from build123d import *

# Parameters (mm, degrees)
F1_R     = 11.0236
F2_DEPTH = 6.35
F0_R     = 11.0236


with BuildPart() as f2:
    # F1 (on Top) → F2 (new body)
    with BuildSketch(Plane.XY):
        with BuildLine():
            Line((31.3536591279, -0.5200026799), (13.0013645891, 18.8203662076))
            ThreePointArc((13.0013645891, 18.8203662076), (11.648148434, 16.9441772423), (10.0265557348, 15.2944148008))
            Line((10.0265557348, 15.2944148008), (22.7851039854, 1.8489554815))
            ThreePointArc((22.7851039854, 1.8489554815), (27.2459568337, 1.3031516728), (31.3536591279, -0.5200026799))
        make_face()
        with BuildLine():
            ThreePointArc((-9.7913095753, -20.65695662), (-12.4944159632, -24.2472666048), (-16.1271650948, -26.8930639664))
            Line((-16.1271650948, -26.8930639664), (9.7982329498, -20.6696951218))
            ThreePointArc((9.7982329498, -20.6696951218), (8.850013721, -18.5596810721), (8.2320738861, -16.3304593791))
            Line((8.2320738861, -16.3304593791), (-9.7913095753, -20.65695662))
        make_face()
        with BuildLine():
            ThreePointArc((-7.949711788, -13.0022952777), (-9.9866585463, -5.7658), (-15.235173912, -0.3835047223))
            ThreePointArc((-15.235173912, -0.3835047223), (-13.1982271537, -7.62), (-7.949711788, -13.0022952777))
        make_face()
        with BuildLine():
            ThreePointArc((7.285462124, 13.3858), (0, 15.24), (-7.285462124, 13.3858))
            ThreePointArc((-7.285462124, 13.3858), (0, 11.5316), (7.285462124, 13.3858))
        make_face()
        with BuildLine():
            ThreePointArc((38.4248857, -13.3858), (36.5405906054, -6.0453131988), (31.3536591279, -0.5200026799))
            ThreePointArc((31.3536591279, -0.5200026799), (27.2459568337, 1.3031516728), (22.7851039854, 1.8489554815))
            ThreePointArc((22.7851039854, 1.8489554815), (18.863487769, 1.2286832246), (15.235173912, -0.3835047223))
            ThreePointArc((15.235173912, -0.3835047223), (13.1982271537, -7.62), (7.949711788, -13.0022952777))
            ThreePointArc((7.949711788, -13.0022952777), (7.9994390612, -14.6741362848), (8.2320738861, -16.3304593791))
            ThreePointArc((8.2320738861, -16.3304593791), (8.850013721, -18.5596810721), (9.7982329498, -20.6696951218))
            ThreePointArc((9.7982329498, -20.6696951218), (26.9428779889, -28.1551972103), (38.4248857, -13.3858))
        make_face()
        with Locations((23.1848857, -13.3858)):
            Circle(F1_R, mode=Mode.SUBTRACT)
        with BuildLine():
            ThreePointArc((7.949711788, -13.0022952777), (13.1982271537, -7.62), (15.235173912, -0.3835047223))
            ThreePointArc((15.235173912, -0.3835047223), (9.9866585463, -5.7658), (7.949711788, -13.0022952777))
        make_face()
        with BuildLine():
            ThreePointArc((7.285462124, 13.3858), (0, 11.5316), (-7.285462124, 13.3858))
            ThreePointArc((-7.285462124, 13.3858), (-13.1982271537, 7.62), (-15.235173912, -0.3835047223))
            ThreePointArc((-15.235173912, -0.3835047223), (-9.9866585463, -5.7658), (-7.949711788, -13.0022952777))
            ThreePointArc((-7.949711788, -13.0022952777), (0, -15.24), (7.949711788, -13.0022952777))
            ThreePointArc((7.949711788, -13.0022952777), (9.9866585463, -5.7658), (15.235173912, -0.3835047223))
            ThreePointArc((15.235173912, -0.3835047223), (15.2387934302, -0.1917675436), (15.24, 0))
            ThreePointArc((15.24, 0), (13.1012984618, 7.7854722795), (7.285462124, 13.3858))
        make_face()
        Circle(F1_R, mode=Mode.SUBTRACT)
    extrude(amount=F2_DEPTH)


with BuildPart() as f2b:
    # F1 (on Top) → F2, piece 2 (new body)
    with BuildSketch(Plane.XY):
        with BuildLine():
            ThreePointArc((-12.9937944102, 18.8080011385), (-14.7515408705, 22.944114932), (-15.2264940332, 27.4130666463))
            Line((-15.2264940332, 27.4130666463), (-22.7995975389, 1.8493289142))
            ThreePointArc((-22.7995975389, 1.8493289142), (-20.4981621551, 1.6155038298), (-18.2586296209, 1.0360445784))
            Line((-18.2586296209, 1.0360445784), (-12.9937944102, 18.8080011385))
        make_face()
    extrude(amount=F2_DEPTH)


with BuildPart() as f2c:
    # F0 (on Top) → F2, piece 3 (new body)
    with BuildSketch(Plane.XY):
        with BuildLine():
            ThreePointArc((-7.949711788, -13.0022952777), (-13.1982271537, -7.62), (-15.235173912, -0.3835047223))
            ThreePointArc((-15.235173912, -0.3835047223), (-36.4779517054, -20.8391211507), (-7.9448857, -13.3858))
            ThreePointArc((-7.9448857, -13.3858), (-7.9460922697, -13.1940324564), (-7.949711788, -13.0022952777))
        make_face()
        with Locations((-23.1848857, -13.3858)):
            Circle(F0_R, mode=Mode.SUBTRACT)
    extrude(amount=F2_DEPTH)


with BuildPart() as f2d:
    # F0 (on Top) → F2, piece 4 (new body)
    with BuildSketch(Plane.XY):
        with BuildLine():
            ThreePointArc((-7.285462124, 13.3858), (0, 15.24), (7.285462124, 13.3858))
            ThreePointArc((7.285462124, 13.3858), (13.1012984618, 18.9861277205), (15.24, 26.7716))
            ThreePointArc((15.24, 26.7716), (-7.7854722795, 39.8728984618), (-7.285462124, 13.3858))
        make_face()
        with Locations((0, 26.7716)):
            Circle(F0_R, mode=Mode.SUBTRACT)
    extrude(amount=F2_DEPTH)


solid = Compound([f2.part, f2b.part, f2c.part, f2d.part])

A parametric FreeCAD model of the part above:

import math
import FreeCAD as App
import Part
import Sketcher

V = App.Vector
Q = App.Units.Quantity

doc = App.newDocument("Part")
body = doc.addObject("PartDesign::Body", "Body")

# Sketch on XY plane
sketch1 = doc.addObject("Sketcher::SketchObject", "Sketch")
body.addObject(sketch1)
sketch1.AttachmentSupport = (doc.XY_Plane, [""])
sketch1.MapMode = "FlatFace"
sketch1.addGeometry([
    Part.LineSegment(V(31.35, -0.52, 0), V(13, 18.82, 0)),  # 0
    Part.ArcOfCircle(Part.Circle(V(0, 26.77, 0), V(0, 0, 1), 15.24), math.radians(-48.86), math.radians(-31.45)),  # 1
    Part.LineSegment(V(10.03, 15.29, 0), V(22.79, 1.85, 0)),  # 2
    Part.ArcOfCircle(Part.Circle(V(23.18, -13.39, 0), V(0, 0, 1), 15.24), math.radians(92), math.radians(121)),  # 3
    Part.ArcOfCircle(Part.Circle(V(0, 0, 0), V(0, 0, 1), 15.24), math.radians(-1.44), math.radians(0)),  # 4
    Part.ArcOfCircle(Part.Circle(V(0, 0, 0), V(0, 0, 1), 15.24), math.radians(0), math.radians(61)),  # 5
    Part.ArcOfCircle(Part.Circle(V(0, 0, 0), V(0, 0, 1), 15.24), math.radians(61), math.radians(181)),  # 6
    Part.ArcOfCircle(Part.Circle(V(0, 0, 0), V(0, 0, 1), 15.24), math.radians(-179), math.radians(-121)),  # 7
    Part.ArcOfCircle(Part.Circle(V(0, 0, 0), V(0, 0, 1), 15.24), math.radians(-121), math.radians(-59)),  # 8
    Part.ArcOfCircle(Part.Circle(V(23.18, -13.39, 0), V(0, 0, 1), 15.24), math.radians(178.56), math.radians(191.14)),  # 9
    Part.LineSegment(V(8.23, -16.33, 0), V(-9.79, -20.66, 0)),  # 10
    Part.ArcOfCircle(Part.Circle(V(-23.18, -13.39, 0), V(0, 0, 1), 15.24), math.radians(-62), math.radians(-28)),  # 11
    Part.LineSegment(V(-16.13, -26.89, 0), V(9.8, -20.67, 0)),  # 12
    Part.ArcOfCircle(Part.Circle(V(23.18, -13.39, 0), V(0, 0, 1), 15.24), math.radians(-151), math.radians(0)),  # 13
    Part.ArcOfCircle(Part.Circle(V(23.18, -13.39, 0), V(0, 0, 1), 15.24), math.radians(0), math.radians(58)),  # 14
    Part.Circle(V(23.18, -13.39, 0), V(0, 0, 1), 11.02),  # 15
    Part.Circle(V(0, 0, 0), V(0, 0, 1), 11.02),  # 16
], False)
sketch1.addConstraint([
    Sketcher.Constraint("Coincident", 0, 2, 1, 2),
    Sketcher.Constraint("Coincident", 1, 1, 2, 1),
    Sketcher.Constraint("Coincident", 2, 2, 3, 1),
    Sketcher.Constraint("Coincident", 3, 2, 4, 1),
    Sketcher.Constraint("Tangent", 4, 2, 5, 1),
    Sketcher.Constraint("Tangent", 5, 2, 6, 1),
    Sketcher.Constraint("Tangent", 6, 2, 7, 1),
    Sketcher.Constraint("Tangent", 7, 2, 8, 1),
    Sketcher.Constraint("Coincident", 8, 2, 9, 1),
    Sketcher.Constraint("Coincident", 9, 2, 10, 1),
    Sketcher.Constraint("Coincident", 10, 2, 11, 2),
    Sketcher.Constraint("Coincident", 11, 1, 12, 1),
    Sketcher.Constraint("Coincident", 12, 2, 13, 1),
    Sketcher.Constraint("Tangent", 13, 2, 14, 1),
    Sketcher.Constraint("Coincident", 14, 2, 0, 1),
    Sketcher.Constraint("Coincident", 4, 3, -1, 1),
    Sketcher.Constraint("Coincident", 6, 3, -1, 1),
    Sketcher.Constraint("Coincident", 8, 3, -1, 1),
    Sketcher.Constraint("Coincident", 16, 3, -1, 1),
    Sketcher.Constraint("Coincident", 9, 3, 3, 3),
    Sketcher.Constraint("Coincident", 13, 3, 3, 3),
    Sketcher.Constraint("Coincident", 15, 3, 3, 3),
    Sketcher.Constraint("Equal", 1, 3),
    Sketcher.Constraint("Equal", 3, 4),
    Sketcher.Constraint("Equal", 8, 9),
    Sketcher.Constraint("Equal", 9, 11),
    Sketcher.Constraint("Equal", 11, 13),
    Sketcher.Constraint("Equal", 13, 14),
    Sketcher.Constraint("Equal", 15, 16),
    Sketcher.Constraint("Symmetric", 3, 3, 11, 3, -2),
    Sketcher.Constraint("PointOnObject", 1, 3, -2),
    Sketcher.Constraint("PointOnObject", 4, 2, -1),
    Sketcher.Constraint("Parallel", 0, 2),
    Sketcher.Constraint("Parallel", 10, 12),
    Sketcher.Constraint("Horizontal", 3, 2, 6, 2),
    Sketcher.Constraint("Horizontal", 7, 2, 8, 2),
    Sketcher.Constraint("Horizontal", 15, 3, 13, 2),
    Sketcher.Constraint("Equal", 2, 10),
    Sketcher.Constraint("Equal", 0, 12),
    Sketcher.Constraint("Radius", 1, Q("0.6 in")),
    Sketcher.Constraint("Diameter", 15, Q("0.868 in")),
    Sketcher.Constraint("DistanceY", -1, 1, 1, 3, Q("1.054 in")),
    Sketcher.Constraint("DistanceY", 3, 3, -1, 1, Q("0.527 in")),
    Sketcher.Constraint("DistanceY", -1, 1, 5, 2, Q("0.527 in")),
    Sketcher.Constraint("DistanceY", 12, 2, 8, 2, Q("7.6674 mm")),
    Sketcher.Constraint("DistanceX", 7, 2, -1, 1, Q("7.949712 mm")),
    Sketcher.Constraint("DistanceY", 9, 2, -1, 1, Q("16.330459 mm")),
    Sketcher.Constraint("DistanceX", 10, 2, -1, 1, Q("9.79131 mm")),
    Sketcher.Constraint("DistanceX", -1, 1, 14, 2, Q("31.353659 mm")),
])
pad1 = doc.addObject("PartDesign::Pad", "Pad")
body.addObject(pad1)
pad1.Profile = sketch1
pad1.Length = Q("0.25 in")
body2 = doc.addObject("PartDesign::Body", "Body001")

# Sketch on XY plane
sketch2 = doc.addObject("Sketcher::SketchObject", "Sketch001")
body2.addObject(sketch2)
sketch2.AttachmentSupport = (doc.getObject("XY_Plane001"), [""])
sketch2.MapMode = "FlatFace"
sketch2.addGeometry([
    Part.ArcOfCircle(Part.Circle(V(0, 26.8, 0), V(0, 0, 1), 15.2), math.radians(178), math.radians(212)),
    Part.LineSegment(V(-15.2, 27.4, 0), V(-22.8, 1.8, 0)),
    Part.ArcOfCircle(Part.Circle(V(-23.2, -13.4, 0), V(0, 0, 1), 15.2), math.radians(71.14), math.radians(88.55)),
    Part.LineSegment(V(-18.3, 1, 0), V(-13, 18.8, 0)),
], False)
sketch2.addConstraint([
    Sketcher.Constraint("Coincident", 0, 1, 1, 1),
    Sketcher.Constraint("Coincident", 1, 2, 2, 2),
    Sketcher.Constraint("Coincident", 2, 1, 3, 1),
    Sketcher.Constraint("Coincident", 3, 2, 0, 2),
    Sketcher.Constraint("Equal", 0, 2),
    Sketcher.Constraint("PointOnObject", 0, 3, -2),
    Sketcher.Constraint("Parallel", 1, 3),
    Sketcher.Constraint("Radius", 0, Q("0.6 in")),
    Sketcher.Constraint("DistanceY", -1, 1, 0, 3, Q("1.054 in")),
    Sketcher.Constraint("DistanceY", 2, 3, -1, 1, Q("0.527 in")),
    Sketcher.Constraint("DistanceY", -1, 1, 3, 2, Q("18.808001 mm")),
    Sketcher.Constraint("DistanceX", 0, 1, 3, 2, Q("2.2327 mm")),
    Sketcher.Constraint("DistanceY", -1, 1, 1, 2, Q("1.849329 mm")),
    Sketcher.Constraint("DistanceX", 2, 1, -1, 1, Q("18.25863 mm")),
])
pad2 = doc.addObject("PartDesign::Pad", "Pad001")
body2.addObject(pad2)
pad2.Profile = sketch2
pad2.Length = Q("0.25 in")
body3 = doc.addObject("PartDesign::Body", "Body002")

# Sketch on XY plane
sketch3 = doc.addObject("Sketcher::SketchObject", "Sketch002")
body3.addObject(sketch3)
sketch3.AttachmentSupport = (doc.getObject("XY_Plane002"), [""])
sketch3.MapMode = "FlatFace"
sketch3.addGeometry([
    Part.ArcOfCircle(Part.Circle(V(0, 0, 0), V(0, 0, 1), 15.24), math.radians(-179), math.radians(-121)),
    Part.ArcOfCircle(Part.Circle(V(-23.18, -13.39, 0), V(0, 0, 1), 15.24), math.radians(59), math.radians(360)),
    Part.ArcOfCircle(Part.Circle(V(-23.18, -13.39, 0), V(0, 0, 1), 15.24), math.radians(0), math.radians(1.44)),
    Part.Circle(V(-23.18, -13.39, 0), V(0, 0, 1), 11.02),
], False)
sketch3.addConstraint([
    Sketcher.Constraint("Coincident", 0, 1, 1, 1),
    Sketcher.Constraint("Tangent", 1, 2, 2, 1),
    Sketcher.Constraint("Coincident", 2, 2, 0, 2),
    Sketcher.Constraint("Coincident", 0, 3, -1, 1),
    Sketcher.Constraint("Coincident", 3, 3, 1, 3),
    Sketcher.Constraint("Equal", 0, 1),
    Sketcher.Constraint("Equal", 1, 2),
    Sketcher.Constraint("Horizontal", 3, 3, 1, 2),
    Sketcher.Constraint("Radius", 0, Q("0.6 in")),
    Sketcher.Constraint("Diameter", 3, Q("0.868 in")),
    Sketcher.Constraint("DistanceY", 1, 3, -1, 1, Q("0.527 in")),
    Sketcher.Constraint("DistanceX", 2, 2, -1, 1, Q("7.949712 mm")),
])
pad3 = doc.addObject("PartDesign::Pad", "Pad002")
body3.addObject(pad3)
pad3.Profile = sketch3
pad3.Length = Q("0.25 in")
body4 = doc.addObject("PartDesign::Body", "Body003")

# Sketch on XY plane
sketch4 = doc.addObject("Sketcher::SketchObject", "Sketch003")
body4.addObject(sketch4)
sketch4.AttachmentSupport = (doc.getObject("XY_Plane003"), [""])
sketch4.MapMode = "FlatFace"
sketch4.addGeometry([
    Part.ArcOfCircle(Part.Circle(V(0, 0, 0), V(0, 0, 1), 15), math.radians(61), math.radians(119)),
    Part.ArcOfCircle(Part.Circle(V(0, 27, 0), V(0, 0, 1), 15), math.radians(-61), math.radians(241)),
    Part.Circle(V(0, 27, 0), V(0, 0, 1), 11),
], False)
sketch4.addConstraint([
    Sketcher.Constraint("Coincident", 0, 1, 1, 1),
    Sketcher.Constraint("Coincident", 1, 2, 0, 2),
    Sketcher.Constraint("Coincident", 0, 3, -1, 1),
    Sketcher.Constraint("Coincident", 2, 3, 1, 3),
    Sketcher.Constraint("Equal", 0, 1),
    Sketcher.Constraint("PointOnObject", 1, 3, -2),
    Sketcher.Constraint("Radius", 0, Q("0.6 in")),
    Sketcher.Constraint("Diameter", 2, Q("0.868 in")),
    Sketcher.Constraint("DistanceY", -1, 1, 1, 3, Q("1.054 in")),
])
pad4 = doc.addObject("PartDesign::Pad", "Pad003")
body4.addObject(pad4)
pad4.Profile = sketch4
pad4.Length = Q("0.25 in")

doc.recompute()
